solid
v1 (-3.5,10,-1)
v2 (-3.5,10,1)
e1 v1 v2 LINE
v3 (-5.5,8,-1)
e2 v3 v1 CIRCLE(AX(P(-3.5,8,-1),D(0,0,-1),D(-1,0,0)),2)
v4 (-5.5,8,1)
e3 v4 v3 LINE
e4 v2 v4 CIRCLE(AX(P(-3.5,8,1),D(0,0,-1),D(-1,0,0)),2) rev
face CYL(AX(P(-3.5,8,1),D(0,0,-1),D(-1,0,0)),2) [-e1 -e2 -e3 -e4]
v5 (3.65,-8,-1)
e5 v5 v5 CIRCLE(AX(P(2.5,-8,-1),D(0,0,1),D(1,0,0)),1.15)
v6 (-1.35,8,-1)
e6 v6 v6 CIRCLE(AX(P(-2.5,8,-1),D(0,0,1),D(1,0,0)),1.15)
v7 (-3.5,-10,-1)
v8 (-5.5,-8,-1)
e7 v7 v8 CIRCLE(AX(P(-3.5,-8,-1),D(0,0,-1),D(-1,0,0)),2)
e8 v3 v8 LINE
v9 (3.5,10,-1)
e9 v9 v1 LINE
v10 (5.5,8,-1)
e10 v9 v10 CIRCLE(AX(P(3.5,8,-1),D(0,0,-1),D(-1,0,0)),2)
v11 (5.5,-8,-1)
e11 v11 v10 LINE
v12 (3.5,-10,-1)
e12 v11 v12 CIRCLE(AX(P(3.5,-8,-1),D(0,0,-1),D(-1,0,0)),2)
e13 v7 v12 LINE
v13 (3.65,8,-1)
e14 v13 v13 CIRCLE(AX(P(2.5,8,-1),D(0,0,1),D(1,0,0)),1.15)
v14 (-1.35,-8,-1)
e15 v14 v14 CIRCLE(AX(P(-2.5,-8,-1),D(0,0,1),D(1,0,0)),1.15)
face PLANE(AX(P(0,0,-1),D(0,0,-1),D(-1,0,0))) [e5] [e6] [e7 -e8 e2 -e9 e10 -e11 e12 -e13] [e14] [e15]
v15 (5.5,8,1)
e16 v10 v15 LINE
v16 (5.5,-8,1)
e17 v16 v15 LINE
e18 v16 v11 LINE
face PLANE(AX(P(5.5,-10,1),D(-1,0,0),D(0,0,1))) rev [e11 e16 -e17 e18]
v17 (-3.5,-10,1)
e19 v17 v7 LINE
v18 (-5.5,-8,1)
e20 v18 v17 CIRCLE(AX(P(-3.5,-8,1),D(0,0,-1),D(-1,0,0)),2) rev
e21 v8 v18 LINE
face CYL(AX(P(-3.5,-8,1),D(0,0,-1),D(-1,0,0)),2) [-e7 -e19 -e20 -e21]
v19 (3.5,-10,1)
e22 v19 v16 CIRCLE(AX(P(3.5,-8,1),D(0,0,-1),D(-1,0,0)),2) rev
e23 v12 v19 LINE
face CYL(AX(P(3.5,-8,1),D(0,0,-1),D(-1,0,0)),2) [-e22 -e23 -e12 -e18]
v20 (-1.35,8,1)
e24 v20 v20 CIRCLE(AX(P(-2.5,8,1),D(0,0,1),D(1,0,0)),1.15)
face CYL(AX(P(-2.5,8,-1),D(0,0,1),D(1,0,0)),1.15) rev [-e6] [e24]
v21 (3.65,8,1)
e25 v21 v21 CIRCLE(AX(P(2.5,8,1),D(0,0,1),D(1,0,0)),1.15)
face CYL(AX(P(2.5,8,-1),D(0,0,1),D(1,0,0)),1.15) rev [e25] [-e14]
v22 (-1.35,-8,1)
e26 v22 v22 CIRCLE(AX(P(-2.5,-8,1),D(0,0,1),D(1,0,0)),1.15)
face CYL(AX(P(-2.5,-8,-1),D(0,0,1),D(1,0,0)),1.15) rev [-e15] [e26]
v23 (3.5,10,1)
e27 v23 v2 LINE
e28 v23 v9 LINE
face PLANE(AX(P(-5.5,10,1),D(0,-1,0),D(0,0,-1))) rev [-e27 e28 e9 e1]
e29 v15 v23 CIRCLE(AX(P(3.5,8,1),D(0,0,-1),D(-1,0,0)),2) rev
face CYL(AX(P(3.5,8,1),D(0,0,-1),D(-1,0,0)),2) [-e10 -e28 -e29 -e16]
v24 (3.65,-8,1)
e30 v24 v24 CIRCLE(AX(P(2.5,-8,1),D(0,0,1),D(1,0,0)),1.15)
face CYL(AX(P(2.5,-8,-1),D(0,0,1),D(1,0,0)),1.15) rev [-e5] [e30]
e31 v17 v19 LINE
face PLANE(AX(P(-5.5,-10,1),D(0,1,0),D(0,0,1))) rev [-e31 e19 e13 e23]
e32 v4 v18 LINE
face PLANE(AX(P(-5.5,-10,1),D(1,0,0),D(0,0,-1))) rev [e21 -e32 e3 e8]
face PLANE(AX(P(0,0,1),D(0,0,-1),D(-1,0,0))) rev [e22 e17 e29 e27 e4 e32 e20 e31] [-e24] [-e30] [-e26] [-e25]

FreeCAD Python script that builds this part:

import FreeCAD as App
import Part
import Sketcher
from FreeCAD import Vector
Q = App.Units.Quantity


def edges_at(feature, points):
    """Names of the edges that pass closest to the given points."""
    edges = feature.Shape.Edges
    near = lambda p: min(range(len(edges)), key=lambda i: edges[i].distToShape(Part.Vertex(*p))[0])
    return sorted({f"Edge{near(p) + 1}" for p in points})

doc = App.newDocument("Part")
body = doc.addObject("PartDesign::Body", "Body")

# Sketch on XY plane
sketch1 = doc.addObject("Sketcher::SketchObject", "Sketch")
body.addObject(sketch1)
sketch1.AttachmentSupport = (doc.XY_Plane, [""])
sketch1.MapMode = "FlatFace"
sketch1.addGeometry([
    Part.LineSegment(Vector(-6, 10, 0), Vector(-6, -10, 0)),
    Part.LineSegment(Vector(-6, -10, 0), Vector(6, -10, 0)),
    Part.LineSegment(Vector(6, -10, 0), Vector(6, 10, 0)),
    Part.LineSegment(Vector(6, 10, 0), Vector(-6, 10, 0)),
], False)
sketch1.addConstraint([
    Sketcher.Constraint("Coincident", 0, 2, 1, 1),
    Sketcher.Constraint("Coincident", 1, 2, 2, 1),
    Sketcher.Constraint("Coincident", 2, 2, 3, 1),
    Sketcher.Constraint("Coincident", 3, 2, 0, 1),
    Sketcher.Constraint("Vertical", 0),
    Sketcher.Constraint("Horizontal", 1),
    Sketcher.Constraint("Vertical", 2),
    Sketcher.Constraint("Horizontal", 3),
    Sketcher.Constraint("Symmetric", 0, 2, 2, 2, -1, 1),
    Sketcher.Constraint("DistanceX", 1, 1, 1, 2, Q("11 mm")),
    Sketcher.Constraint("DistanceY", 0, 2, 0, 1, Q("20 mm")),
])
pad1 = doc.addObject("PartDesign::Pad", "Pad")
body.addObject(pad1)
pad1.Profile = sketch1
pad1.Length = 2
pad1.Midplane = True

# Sketch on XY plane
sketch2 = doc.addObject("Sketcher::SketchObject", "Sketch001")
body.addObject(sketch2)
sketch2.AttachmentSupport = (doc.XY_Plane, [""])
sketch2.MapMode = "FlatFace"
sketch2.AttachmentOffset = App.Placement(Vector(0, 0, 1), App.Rotation())
sketch2.addGeometry([
    Part.Circle(Vector(-2.5, 8, 0), Vector(0, 0, 1), 1.1),
    Part.Circle(Vector(2.5, 8, 0), Vector(0, 0, 1), 1.1),
    Part.Circle(Vector(-2.5, -8, 0), Vector(0, 0, 1), 1.1),
    Part.Circle(Vector(2.5, -8, 0), Vector(0, 0, 1), 1.1),
], False)
sketch2.addConstraint([
    Sketcher.Constraint("Equal", 0, 1),
    Sketcher.Constraint("Equal", 1, 2),
    Sketcher.Constraint("Equal", 2, 3),
    Sketcher.Constraint("Symmetric", 1, 3, 2, 3, -1, 1),
    Sketcher.Constraint("Symmetric", 0, 3, 3, 3, -1, 1),
    Sketcher.Constraint("Symmetric", 0, 3, 1, 3, -2),
    Sketcher.Constraint("Diameter", 0, Q("2.3 mm")),
    Sketcher.Constraint("DistanceY", -1, 1, 0, 3, Q("8 mm")),
    Sketcher.Constraint("DistanceX", 0, 3, 1, 3, Q("5 mm")),
])
pocket1 = doc.addObject("PartDesign::Pocket", "Pocket")
body.addObject(pocket1)
pocket1.Profile = sketch2
pocket1.Type = "ThroughAll"
doc.recompute()

fillet = doc.addObject("PartDesign::Fillet", "Fillet")
body.addObject(fillet)
fillet.Base = (pocket1, edges_at(pocket1, [
    (5.5, -10, 0),
    (-5.5, -10, 0),
    (-5.5, 10, 0),
    (5.5, 10, 0),
]))
fillet.Radius = 2

doc.recompute()
